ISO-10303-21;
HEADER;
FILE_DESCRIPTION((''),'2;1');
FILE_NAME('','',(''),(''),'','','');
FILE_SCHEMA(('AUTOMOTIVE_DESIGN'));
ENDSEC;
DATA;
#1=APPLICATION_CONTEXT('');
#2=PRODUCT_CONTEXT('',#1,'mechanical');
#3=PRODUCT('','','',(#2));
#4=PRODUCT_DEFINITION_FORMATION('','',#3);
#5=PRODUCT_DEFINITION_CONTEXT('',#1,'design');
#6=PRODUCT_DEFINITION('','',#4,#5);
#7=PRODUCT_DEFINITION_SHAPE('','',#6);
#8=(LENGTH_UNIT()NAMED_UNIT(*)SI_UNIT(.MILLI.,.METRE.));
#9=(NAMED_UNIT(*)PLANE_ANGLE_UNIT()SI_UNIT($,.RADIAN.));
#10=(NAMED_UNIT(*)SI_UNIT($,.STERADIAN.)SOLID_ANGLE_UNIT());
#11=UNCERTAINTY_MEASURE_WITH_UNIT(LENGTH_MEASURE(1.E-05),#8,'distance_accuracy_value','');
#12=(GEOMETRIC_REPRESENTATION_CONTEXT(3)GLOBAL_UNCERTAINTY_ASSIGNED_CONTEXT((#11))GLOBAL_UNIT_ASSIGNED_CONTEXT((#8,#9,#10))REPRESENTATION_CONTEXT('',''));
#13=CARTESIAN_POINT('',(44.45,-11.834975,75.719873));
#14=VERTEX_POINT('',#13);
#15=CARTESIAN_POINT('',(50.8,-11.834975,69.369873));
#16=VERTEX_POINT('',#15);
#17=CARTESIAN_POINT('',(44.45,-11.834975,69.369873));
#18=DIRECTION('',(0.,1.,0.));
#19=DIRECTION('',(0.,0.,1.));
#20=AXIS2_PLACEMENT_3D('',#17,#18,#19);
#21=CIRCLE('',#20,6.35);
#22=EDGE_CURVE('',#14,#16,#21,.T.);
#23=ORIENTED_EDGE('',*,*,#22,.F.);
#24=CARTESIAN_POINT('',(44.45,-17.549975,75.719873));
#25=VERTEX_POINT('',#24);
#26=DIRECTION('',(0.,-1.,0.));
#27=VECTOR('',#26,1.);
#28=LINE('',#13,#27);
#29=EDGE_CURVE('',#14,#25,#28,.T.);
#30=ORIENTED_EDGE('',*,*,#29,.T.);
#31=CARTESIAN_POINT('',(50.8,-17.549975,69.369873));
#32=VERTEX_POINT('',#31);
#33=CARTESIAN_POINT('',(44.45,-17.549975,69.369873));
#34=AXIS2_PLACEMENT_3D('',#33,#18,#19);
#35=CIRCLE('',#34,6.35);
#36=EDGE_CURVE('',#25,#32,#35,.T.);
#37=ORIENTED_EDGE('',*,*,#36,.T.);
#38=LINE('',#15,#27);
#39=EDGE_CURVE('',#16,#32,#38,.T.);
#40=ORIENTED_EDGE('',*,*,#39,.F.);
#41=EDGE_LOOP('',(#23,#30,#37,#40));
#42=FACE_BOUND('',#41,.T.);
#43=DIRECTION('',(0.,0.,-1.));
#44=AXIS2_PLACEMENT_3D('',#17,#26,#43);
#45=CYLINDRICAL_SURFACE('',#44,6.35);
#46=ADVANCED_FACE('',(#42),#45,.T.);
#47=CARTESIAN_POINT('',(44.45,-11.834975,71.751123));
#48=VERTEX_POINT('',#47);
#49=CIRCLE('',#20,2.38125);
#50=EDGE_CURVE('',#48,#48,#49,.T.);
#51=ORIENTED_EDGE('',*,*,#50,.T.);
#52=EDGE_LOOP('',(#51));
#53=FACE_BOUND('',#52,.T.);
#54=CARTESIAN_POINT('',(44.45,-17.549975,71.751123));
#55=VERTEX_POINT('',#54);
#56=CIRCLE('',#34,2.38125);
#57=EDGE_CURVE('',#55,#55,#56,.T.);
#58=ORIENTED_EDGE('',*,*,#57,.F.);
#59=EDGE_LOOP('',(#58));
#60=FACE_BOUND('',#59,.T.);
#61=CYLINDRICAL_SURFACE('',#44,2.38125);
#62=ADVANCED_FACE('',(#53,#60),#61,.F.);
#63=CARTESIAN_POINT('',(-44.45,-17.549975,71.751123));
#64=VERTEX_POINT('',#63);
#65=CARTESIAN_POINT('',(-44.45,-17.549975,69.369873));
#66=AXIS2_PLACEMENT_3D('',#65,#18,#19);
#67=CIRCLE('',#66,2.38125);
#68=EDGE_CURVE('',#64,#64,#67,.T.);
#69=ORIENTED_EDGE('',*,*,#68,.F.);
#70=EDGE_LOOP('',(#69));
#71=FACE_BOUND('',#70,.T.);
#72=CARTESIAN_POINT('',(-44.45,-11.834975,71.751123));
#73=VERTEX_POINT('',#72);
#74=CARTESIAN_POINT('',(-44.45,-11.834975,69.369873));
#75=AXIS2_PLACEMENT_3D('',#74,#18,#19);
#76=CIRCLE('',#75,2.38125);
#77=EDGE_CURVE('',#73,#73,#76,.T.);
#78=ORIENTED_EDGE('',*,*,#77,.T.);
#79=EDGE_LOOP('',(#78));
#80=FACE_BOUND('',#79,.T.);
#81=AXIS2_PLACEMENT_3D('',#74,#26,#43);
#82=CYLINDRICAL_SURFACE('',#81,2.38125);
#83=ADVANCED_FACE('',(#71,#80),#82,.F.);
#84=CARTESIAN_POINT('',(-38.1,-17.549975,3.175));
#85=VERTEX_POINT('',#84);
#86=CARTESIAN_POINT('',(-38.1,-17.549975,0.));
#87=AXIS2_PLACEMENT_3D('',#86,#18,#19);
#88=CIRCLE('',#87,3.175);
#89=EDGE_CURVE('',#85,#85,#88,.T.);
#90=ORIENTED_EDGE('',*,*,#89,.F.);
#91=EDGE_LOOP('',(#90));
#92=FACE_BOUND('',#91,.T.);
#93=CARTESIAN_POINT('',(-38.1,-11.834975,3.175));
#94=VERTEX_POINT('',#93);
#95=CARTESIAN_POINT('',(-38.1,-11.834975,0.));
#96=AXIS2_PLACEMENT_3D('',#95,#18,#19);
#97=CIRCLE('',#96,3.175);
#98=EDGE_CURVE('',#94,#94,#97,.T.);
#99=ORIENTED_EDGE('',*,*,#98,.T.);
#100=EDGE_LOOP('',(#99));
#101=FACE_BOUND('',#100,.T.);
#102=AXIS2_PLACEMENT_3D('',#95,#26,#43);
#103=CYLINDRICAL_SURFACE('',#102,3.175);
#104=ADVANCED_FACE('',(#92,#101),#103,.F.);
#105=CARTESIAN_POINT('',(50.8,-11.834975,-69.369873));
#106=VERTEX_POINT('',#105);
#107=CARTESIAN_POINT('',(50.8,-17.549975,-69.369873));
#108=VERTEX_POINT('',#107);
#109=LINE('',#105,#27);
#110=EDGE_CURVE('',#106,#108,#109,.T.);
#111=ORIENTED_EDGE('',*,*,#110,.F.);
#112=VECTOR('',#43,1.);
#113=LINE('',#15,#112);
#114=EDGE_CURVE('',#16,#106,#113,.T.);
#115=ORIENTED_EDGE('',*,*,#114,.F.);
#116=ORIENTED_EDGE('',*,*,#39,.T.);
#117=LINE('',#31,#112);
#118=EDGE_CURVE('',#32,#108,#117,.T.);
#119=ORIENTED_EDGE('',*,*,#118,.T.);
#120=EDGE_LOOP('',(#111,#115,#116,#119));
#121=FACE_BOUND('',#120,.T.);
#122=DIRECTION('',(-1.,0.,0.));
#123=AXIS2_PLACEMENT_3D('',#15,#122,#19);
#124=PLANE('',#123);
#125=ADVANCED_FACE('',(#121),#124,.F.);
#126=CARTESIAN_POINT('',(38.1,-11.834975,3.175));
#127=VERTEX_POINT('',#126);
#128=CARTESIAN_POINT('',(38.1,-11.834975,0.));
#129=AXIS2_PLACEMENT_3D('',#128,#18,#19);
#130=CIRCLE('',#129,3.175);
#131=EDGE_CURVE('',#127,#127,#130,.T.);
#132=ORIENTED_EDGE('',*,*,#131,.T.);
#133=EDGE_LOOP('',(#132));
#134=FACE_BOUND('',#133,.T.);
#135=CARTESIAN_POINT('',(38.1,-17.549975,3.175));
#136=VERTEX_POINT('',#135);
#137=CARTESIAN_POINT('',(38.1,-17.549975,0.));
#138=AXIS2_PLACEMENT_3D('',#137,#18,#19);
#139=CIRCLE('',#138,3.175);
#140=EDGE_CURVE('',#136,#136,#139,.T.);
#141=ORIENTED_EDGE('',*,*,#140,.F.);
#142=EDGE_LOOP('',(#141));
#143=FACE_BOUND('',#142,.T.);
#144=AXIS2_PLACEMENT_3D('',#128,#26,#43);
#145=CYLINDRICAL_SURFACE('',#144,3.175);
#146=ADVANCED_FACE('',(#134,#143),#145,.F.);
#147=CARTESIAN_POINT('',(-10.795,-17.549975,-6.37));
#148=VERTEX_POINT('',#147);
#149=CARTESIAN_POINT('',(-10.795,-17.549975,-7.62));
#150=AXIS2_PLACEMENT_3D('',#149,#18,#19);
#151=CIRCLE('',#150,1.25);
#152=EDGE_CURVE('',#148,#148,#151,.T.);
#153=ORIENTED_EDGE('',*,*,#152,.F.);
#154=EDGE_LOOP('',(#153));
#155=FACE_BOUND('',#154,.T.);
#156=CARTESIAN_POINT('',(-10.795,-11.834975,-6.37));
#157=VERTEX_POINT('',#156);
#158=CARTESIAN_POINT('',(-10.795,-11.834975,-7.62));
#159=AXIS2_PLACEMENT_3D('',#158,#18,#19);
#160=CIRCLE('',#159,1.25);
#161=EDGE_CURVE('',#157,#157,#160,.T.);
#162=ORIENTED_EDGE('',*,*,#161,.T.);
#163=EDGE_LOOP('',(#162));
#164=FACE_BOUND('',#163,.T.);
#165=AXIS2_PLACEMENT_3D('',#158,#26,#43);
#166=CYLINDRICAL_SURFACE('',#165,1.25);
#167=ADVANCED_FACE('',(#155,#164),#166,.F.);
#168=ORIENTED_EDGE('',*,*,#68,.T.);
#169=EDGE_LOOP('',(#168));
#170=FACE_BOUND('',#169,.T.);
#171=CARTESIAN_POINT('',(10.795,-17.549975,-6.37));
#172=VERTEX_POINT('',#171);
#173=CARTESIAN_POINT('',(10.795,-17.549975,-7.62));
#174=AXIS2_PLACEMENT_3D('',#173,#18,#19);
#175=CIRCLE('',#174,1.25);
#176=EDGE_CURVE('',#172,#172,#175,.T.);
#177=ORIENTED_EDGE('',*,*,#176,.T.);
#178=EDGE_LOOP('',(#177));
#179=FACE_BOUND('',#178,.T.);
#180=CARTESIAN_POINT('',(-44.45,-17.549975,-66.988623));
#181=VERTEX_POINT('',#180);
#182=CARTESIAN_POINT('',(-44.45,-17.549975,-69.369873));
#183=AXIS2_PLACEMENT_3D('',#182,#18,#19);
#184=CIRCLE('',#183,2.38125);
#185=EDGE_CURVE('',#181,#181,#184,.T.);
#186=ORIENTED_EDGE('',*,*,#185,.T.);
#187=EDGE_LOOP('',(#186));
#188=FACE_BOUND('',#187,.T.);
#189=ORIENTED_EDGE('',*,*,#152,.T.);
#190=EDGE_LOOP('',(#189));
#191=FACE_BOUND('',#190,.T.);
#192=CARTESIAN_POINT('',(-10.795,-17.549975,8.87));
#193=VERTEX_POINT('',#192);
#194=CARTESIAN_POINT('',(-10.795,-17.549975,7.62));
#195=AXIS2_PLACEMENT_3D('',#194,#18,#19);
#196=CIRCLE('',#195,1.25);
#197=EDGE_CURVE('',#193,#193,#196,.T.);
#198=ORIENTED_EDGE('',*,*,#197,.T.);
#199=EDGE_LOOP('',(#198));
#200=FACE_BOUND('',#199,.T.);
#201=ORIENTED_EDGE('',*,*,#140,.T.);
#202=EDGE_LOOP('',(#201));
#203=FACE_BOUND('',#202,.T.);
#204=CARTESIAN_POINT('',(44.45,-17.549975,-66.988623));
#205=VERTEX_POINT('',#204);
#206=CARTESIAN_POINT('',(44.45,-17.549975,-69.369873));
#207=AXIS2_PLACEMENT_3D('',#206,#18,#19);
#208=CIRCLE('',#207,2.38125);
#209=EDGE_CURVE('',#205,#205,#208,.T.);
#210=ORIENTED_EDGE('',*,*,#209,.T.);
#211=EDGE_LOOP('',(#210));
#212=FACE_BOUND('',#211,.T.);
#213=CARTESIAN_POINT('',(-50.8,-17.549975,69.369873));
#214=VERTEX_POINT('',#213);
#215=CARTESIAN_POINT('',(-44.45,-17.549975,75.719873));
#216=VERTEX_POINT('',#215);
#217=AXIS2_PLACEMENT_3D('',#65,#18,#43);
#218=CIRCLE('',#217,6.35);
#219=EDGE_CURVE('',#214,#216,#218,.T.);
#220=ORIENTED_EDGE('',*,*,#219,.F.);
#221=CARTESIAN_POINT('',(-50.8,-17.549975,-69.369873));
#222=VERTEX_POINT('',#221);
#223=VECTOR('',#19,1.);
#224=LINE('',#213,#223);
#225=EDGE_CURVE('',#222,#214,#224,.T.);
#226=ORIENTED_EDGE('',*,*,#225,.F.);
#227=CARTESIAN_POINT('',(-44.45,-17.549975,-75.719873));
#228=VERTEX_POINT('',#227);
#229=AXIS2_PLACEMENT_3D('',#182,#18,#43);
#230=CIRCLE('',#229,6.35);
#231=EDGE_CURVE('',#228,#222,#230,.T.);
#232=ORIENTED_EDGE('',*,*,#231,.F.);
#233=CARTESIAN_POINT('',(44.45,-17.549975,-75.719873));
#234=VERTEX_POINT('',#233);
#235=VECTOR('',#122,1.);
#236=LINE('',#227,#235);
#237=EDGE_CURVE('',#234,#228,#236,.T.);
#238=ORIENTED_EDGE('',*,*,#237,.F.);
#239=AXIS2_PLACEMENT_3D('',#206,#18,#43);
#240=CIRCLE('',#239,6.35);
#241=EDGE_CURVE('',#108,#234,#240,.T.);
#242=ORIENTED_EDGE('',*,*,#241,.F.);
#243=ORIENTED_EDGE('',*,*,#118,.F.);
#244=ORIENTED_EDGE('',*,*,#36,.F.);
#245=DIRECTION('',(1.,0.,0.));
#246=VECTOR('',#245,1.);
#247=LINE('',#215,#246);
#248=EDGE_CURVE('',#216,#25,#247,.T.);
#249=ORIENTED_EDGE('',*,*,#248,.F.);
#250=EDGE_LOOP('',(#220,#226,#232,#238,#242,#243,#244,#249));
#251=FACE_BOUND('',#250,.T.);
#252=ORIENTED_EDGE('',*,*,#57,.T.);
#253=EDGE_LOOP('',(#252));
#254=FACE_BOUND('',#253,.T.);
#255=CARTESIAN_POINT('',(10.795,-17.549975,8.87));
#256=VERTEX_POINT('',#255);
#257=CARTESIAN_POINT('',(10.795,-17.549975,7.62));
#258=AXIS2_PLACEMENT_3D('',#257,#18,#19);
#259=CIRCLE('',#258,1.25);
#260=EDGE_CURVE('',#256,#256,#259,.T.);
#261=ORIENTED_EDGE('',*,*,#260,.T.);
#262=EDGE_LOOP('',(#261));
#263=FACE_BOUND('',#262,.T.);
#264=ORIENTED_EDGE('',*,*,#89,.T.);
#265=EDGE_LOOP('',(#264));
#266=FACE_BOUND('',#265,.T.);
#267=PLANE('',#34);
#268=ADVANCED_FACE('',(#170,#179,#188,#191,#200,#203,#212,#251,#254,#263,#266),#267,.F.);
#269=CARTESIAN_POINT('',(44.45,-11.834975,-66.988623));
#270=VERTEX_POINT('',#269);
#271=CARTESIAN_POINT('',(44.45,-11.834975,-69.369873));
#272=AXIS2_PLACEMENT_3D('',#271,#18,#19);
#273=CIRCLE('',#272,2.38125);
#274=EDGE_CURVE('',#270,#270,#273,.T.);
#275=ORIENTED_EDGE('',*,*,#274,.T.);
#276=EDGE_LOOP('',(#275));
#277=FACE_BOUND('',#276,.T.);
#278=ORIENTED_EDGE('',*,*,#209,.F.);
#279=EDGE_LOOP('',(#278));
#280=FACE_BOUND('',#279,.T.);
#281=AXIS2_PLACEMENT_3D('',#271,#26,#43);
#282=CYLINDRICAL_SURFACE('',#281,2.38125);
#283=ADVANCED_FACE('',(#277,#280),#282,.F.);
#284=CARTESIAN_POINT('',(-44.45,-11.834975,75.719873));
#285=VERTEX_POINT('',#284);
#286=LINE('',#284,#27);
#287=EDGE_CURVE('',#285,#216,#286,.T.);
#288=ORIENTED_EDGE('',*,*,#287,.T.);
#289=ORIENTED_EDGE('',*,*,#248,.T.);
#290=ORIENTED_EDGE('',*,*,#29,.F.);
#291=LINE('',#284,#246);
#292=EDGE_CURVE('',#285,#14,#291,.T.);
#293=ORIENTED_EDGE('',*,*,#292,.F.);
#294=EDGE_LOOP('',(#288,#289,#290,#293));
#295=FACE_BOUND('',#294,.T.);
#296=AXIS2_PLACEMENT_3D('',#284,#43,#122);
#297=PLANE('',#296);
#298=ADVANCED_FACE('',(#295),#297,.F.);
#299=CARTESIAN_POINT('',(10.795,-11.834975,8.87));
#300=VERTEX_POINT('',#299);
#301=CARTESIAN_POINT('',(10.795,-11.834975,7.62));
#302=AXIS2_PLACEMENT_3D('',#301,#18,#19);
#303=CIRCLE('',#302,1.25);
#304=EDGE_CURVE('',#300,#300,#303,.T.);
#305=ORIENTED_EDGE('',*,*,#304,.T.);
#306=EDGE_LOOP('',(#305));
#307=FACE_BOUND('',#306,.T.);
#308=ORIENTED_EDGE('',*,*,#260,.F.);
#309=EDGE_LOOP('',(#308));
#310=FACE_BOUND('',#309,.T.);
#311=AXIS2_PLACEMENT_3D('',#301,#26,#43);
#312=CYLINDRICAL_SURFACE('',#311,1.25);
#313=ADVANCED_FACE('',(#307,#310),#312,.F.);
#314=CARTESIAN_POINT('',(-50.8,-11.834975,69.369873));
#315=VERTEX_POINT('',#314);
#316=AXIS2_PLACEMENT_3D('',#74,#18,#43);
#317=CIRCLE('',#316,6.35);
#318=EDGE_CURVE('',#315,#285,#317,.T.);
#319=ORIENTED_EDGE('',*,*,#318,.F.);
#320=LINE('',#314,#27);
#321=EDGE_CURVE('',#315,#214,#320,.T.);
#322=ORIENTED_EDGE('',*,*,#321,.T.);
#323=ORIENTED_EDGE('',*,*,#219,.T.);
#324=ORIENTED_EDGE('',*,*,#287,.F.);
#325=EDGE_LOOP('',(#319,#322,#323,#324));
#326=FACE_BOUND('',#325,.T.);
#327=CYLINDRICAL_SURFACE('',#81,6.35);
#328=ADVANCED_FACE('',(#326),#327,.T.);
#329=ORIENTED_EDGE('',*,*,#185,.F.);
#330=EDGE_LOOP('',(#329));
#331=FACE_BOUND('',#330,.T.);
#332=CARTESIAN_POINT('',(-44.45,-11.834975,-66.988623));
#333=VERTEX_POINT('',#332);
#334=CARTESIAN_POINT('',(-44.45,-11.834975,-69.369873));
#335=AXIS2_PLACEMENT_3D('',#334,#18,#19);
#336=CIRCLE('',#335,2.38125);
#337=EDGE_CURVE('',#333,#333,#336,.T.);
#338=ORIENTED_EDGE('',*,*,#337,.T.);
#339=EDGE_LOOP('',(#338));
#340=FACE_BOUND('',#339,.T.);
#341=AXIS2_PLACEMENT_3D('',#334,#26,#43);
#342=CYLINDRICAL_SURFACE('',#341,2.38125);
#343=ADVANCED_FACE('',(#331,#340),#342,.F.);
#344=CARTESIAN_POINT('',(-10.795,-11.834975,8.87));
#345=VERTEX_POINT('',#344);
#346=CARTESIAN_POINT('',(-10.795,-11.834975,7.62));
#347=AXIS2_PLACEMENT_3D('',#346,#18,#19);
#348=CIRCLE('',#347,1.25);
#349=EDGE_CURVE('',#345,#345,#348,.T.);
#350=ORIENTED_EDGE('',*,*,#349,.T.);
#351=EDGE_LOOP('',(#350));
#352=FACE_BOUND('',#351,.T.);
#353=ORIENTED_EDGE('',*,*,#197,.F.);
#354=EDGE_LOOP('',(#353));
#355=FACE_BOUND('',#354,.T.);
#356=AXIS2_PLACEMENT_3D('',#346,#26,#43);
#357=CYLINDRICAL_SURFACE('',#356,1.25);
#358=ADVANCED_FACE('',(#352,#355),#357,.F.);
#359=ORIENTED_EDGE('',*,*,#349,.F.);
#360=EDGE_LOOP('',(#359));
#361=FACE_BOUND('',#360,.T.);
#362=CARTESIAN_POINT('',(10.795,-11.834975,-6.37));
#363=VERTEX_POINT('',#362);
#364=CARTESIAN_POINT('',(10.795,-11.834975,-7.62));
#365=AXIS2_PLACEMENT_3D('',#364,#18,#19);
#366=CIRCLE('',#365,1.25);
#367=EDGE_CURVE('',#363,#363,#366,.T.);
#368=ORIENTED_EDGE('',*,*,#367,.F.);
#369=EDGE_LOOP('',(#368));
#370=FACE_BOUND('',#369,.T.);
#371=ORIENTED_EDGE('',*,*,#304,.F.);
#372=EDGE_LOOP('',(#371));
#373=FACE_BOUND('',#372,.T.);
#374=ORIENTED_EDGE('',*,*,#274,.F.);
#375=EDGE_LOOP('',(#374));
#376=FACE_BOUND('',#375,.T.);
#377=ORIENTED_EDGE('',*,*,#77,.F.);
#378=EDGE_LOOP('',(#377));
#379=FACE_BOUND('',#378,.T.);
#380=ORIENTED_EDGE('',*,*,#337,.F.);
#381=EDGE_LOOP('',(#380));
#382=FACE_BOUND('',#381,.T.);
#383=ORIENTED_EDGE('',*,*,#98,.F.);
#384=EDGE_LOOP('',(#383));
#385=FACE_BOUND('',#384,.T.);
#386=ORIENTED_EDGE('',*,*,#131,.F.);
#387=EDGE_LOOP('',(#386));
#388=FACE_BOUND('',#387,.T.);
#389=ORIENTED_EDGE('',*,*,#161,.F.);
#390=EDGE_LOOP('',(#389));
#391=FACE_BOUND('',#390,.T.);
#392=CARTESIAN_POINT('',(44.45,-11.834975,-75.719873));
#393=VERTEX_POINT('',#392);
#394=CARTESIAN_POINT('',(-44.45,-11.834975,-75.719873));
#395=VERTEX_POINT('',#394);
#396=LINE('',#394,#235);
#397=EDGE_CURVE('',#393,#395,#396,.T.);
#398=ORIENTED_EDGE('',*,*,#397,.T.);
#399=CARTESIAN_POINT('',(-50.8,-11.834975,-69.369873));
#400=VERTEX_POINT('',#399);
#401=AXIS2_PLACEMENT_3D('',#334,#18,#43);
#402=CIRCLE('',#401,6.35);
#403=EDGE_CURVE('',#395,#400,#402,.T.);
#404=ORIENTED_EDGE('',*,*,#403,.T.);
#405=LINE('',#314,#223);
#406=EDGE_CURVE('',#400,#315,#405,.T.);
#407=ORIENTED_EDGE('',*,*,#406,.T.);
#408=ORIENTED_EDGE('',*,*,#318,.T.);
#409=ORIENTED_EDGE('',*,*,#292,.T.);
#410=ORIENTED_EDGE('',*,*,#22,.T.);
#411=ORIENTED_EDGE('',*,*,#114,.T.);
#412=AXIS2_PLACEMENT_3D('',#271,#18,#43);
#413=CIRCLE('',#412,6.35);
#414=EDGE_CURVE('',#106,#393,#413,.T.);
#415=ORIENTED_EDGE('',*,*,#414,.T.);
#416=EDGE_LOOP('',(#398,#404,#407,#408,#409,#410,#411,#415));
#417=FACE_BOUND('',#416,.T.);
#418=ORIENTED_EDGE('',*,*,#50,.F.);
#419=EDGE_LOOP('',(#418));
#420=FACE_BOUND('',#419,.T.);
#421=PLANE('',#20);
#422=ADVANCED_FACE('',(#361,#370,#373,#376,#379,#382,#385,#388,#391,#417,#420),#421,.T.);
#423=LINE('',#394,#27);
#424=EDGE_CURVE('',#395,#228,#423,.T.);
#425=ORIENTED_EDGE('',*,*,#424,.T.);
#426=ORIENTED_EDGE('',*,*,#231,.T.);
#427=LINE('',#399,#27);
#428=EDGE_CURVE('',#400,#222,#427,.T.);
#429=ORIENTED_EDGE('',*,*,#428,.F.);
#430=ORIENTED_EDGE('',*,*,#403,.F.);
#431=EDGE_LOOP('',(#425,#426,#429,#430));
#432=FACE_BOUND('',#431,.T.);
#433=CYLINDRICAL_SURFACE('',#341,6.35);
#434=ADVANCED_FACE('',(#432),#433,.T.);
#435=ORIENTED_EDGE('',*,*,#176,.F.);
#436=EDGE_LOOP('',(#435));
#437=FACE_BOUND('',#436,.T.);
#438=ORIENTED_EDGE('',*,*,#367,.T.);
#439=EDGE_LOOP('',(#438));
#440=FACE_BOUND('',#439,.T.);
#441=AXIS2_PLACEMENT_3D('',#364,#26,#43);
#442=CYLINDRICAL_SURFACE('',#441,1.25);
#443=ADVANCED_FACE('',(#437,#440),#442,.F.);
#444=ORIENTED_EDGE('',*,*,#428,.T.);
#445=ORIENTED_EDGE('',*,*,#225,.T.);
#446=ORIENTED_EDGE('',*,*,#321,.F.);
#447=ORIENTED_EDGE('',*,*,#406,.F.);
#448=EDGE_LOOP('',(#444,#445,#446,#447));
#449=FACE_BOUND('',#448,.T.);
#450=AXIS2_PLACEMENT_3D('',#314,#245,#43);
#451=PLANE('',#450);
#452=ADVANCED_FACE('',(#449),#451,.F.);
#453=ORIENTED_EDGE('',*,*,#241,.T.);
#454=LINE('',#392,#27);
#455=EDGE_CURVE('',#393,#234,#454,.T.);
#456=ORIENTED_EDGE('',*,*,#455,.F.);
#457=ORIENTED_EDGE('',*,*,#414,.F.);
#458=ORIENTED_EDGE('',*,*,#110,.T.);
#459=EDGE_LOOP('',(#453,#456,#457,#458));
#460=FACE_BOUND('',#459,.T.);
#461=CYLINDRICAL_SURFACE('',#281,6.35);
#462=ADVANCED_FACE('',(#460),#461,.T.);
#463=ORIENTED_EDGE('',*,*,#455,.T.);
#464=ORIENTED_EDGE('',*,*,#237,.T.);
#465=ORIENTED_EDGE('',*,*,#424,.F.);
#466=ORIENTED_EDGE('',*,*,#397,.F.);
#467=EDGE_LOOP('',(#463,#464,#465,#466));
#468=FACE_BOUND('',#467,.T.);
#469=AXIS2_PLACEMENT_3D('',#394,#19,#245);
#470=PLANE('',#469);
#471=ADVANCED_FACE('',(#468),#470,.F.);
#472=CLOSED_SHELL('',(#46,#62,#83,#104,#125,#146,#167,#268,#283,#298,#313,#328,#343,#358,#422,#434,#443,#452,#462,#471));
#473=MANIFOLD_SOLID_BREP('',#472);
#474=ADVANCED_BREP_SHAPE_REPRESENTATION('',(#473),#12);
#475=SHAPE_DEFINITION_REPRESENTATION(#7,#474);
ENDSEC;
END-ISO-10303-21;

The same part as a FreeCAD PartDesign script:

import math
import FreeCAD as App
import Part
import Sketcher

V = App.Vector
Q = App.Units.Quantity

doc = App.newDocument("Part")
body = doc.addObject("PartDesign::Body", "Body")

# Sketch on XZ plane
sketch1 = body.newObject("Sketcher::SketchObject", "Sketch")
sketch1.AttachmentSupport = (doc.getObject("XZ_Plane"), [""])
sketch1.MapMode = "FlatFace"
sketch1.AttachmentOffset = App.Placement(V(0, 0, 17.549975), App.Rotation())
sketch1.addGeometry([
    Part.LineSegment(V(-44.5, 75.7, 0), V(44.5, 75.7, 0)),  # 0
    Part.ArcOfCircle(Part.Circle(V(44.5, 69.4, 0), V(0, 0, 1), 6.3), math.radians(0), math.radians(90)),  # 1
    Part.LineSegment(V(50.8, 69.4, 0), V(50.8, -69.4, 0)),  # 2
    Part.ArcOfCircle(Part.Circle(V(44.5, -69.4, 0), V(0, 0, 1), 6.3), math.radians(-90), math.radians(0)),  # 3
    Part.LineSegment(V(44.5, -75.7, 0), V(-44.5, -75.7, 0)),  # 4
    Part.ArcOfCircle(Part.Circle(V(-44.5, -69.4, 0), V(0, 0, 1), 6.3), math.radians(180), math.radians(270)),  # 5
    Part.LineSegment(V(-50.8, -69.4, 0), V(-50.8, 69.4, 0)),  # 6
    Part.ArcOfCircle(Part.Circle(V(-44.5, 69.4, 0), V(0, 0, 1), 6.3), math.radians(90), math.radians(180)),  # 7
    Part.Circle(V(-44.5, 69.4, 0), V(0, 0, 1), 2.4),  # 8
    Part.Circle(V(-10.8, 7.6, 0), V(0, 0, 1), 1.2),  # 9
    Part.Circle(V(44.5, 69.4, 0), V(0, 0, 1), 2.4),  # 10
    Part.Circle(V(10.8, 7.6, 0), V(0, 0, 1), 1.2),  # 11
    Part.Circle(V(-38.1, 0, 0), V(0, 0, 1), 3.2),  # 12
    Part.Circle(V(-10.8, -7.6, 0), V(0, 0, 1), 1.2),  # 13
    Part.Circle(V(-44.5, -69.4, 0), V(0, 0, 1), 2.4),  # 14
    Part.Circle(V(10.8, -7.6, 0), V(0, 0, 1), 1.2),  # 15
    Part.Circle(V(38.1, 0, 0), V(0, 0, 1), 3.2),  # 16
    Part.Circle(V(44.5, -69.4, 0), V(0, 0, 1), 2.4),  # 17
], False)
sketch1.addConstraint([
    Sketcher.Constraint("Tangent", 0, 2, 1, 2),
    Sketcher.Constraint("Tangent", 1, 1, 2, 1),
    Sketcher.Constraint("Tangent", 2, 2, 3, 2),
    Sketcher.Constraint("Tangent", 3, 1, 4, 1),
    Sketcher.Constraint("Tangent", 4, 2, 5, 2),
    Sketcher.Constraint("Tangent", 5, 1, 6, 1),
    Sketcher.Constraint("Tangent", 6, 2, 7, 2),
    Sketcher.Constraint("Tangent", 7, 1, 0, 1),
    Sketcher.Constraint("Horizontal", 0),
    Sketcher.Constraint("Vertical", 2),
    Sketcher.Constraint("Horizontal", 4),
    Sketcher.Constraint("Vertical", 6),
    Sketcher.Constraint("Coincident", 8, 3, 7, 3),
    Sketcher.Constraint("Coincident", 10, 3, 1, 3),
    Sketcher.Constraint("Coincident", 14, 3, 5, 3),
    Sketcher.Constraint("Coincident", 17, 3, 3, 3),
    Sketcher.Constraint("Equal", 1, 3),
    Sketcher.Constraint("Equal", 3, 5),
    Sketcher.Constraint("Equal", 5, 7),
    Sketcher.Constraint("Equal", 8, 10),
    Sketcher.Constraint("Equal", 9, 11),
    Sketcher.Constraint("Equal", 11, 13),
    Sketcher.Constraint("Equal", 10, 14),
    Sketcher.Constraint("Equal", 13, 15),
    Sketcher.Constraint("Equal", 12, 16),
    Sketcher.Constraint("Equal", 14, 17),
    Sketcher.Constraint("Symmetric", 1, 3, 5, 3, -1, 1),
    Sketcher.Constraint("Symmetric", 11, 3, 13, 3, -1, 1),
    Sketcher.Constraint("Symmetric", 9, 3, 15, 3, -1, 1),
    Sketcher.Constraint("Symmetric", 12, 3, 16, 3, -1, 1),
    Sketcher.Constraint("Symmetric", 9, 3, 11, 3, -2),
    Sketcher.Constraint("PointOnObject", 12, 3, -1),
    Sketcher.Constraint("Diameter", 12, Q("0.25 in")),
    Sketcher.Constraint("Radius", 1, Q("0.25 in")),
    Sketcher.Constraint("Diameter", 8, Q("0.1875 in")),
    Sketcher.Constraint("DistanceX", 0, 1, 0, 2, Q("3.5 in")),
    Sketcher.Constraint("DistanceY", -1, 1, 9, 3, Q("0.3 in")),
    Sketcher.Constraint("DistanceX", 12, 3, -1, 1, Q("1.5 in")),
    Sketcher.Constraint("Diameter", 9, 2.5),
    Sketcher.Constraint("DistanceX", 9, 3, 11, 3, Q("0.85 in")),
    Sketcher.Constraint("DistanceY", 2, 2, 2, 1, 138.739746),
])
pad1 = body.newObject("PartDesign::Pad", "Pad")
pad1.Profile = sketch1
pad1.Length = Q("0.225 in")
pad1.Reversed = True

doc.recompute()
